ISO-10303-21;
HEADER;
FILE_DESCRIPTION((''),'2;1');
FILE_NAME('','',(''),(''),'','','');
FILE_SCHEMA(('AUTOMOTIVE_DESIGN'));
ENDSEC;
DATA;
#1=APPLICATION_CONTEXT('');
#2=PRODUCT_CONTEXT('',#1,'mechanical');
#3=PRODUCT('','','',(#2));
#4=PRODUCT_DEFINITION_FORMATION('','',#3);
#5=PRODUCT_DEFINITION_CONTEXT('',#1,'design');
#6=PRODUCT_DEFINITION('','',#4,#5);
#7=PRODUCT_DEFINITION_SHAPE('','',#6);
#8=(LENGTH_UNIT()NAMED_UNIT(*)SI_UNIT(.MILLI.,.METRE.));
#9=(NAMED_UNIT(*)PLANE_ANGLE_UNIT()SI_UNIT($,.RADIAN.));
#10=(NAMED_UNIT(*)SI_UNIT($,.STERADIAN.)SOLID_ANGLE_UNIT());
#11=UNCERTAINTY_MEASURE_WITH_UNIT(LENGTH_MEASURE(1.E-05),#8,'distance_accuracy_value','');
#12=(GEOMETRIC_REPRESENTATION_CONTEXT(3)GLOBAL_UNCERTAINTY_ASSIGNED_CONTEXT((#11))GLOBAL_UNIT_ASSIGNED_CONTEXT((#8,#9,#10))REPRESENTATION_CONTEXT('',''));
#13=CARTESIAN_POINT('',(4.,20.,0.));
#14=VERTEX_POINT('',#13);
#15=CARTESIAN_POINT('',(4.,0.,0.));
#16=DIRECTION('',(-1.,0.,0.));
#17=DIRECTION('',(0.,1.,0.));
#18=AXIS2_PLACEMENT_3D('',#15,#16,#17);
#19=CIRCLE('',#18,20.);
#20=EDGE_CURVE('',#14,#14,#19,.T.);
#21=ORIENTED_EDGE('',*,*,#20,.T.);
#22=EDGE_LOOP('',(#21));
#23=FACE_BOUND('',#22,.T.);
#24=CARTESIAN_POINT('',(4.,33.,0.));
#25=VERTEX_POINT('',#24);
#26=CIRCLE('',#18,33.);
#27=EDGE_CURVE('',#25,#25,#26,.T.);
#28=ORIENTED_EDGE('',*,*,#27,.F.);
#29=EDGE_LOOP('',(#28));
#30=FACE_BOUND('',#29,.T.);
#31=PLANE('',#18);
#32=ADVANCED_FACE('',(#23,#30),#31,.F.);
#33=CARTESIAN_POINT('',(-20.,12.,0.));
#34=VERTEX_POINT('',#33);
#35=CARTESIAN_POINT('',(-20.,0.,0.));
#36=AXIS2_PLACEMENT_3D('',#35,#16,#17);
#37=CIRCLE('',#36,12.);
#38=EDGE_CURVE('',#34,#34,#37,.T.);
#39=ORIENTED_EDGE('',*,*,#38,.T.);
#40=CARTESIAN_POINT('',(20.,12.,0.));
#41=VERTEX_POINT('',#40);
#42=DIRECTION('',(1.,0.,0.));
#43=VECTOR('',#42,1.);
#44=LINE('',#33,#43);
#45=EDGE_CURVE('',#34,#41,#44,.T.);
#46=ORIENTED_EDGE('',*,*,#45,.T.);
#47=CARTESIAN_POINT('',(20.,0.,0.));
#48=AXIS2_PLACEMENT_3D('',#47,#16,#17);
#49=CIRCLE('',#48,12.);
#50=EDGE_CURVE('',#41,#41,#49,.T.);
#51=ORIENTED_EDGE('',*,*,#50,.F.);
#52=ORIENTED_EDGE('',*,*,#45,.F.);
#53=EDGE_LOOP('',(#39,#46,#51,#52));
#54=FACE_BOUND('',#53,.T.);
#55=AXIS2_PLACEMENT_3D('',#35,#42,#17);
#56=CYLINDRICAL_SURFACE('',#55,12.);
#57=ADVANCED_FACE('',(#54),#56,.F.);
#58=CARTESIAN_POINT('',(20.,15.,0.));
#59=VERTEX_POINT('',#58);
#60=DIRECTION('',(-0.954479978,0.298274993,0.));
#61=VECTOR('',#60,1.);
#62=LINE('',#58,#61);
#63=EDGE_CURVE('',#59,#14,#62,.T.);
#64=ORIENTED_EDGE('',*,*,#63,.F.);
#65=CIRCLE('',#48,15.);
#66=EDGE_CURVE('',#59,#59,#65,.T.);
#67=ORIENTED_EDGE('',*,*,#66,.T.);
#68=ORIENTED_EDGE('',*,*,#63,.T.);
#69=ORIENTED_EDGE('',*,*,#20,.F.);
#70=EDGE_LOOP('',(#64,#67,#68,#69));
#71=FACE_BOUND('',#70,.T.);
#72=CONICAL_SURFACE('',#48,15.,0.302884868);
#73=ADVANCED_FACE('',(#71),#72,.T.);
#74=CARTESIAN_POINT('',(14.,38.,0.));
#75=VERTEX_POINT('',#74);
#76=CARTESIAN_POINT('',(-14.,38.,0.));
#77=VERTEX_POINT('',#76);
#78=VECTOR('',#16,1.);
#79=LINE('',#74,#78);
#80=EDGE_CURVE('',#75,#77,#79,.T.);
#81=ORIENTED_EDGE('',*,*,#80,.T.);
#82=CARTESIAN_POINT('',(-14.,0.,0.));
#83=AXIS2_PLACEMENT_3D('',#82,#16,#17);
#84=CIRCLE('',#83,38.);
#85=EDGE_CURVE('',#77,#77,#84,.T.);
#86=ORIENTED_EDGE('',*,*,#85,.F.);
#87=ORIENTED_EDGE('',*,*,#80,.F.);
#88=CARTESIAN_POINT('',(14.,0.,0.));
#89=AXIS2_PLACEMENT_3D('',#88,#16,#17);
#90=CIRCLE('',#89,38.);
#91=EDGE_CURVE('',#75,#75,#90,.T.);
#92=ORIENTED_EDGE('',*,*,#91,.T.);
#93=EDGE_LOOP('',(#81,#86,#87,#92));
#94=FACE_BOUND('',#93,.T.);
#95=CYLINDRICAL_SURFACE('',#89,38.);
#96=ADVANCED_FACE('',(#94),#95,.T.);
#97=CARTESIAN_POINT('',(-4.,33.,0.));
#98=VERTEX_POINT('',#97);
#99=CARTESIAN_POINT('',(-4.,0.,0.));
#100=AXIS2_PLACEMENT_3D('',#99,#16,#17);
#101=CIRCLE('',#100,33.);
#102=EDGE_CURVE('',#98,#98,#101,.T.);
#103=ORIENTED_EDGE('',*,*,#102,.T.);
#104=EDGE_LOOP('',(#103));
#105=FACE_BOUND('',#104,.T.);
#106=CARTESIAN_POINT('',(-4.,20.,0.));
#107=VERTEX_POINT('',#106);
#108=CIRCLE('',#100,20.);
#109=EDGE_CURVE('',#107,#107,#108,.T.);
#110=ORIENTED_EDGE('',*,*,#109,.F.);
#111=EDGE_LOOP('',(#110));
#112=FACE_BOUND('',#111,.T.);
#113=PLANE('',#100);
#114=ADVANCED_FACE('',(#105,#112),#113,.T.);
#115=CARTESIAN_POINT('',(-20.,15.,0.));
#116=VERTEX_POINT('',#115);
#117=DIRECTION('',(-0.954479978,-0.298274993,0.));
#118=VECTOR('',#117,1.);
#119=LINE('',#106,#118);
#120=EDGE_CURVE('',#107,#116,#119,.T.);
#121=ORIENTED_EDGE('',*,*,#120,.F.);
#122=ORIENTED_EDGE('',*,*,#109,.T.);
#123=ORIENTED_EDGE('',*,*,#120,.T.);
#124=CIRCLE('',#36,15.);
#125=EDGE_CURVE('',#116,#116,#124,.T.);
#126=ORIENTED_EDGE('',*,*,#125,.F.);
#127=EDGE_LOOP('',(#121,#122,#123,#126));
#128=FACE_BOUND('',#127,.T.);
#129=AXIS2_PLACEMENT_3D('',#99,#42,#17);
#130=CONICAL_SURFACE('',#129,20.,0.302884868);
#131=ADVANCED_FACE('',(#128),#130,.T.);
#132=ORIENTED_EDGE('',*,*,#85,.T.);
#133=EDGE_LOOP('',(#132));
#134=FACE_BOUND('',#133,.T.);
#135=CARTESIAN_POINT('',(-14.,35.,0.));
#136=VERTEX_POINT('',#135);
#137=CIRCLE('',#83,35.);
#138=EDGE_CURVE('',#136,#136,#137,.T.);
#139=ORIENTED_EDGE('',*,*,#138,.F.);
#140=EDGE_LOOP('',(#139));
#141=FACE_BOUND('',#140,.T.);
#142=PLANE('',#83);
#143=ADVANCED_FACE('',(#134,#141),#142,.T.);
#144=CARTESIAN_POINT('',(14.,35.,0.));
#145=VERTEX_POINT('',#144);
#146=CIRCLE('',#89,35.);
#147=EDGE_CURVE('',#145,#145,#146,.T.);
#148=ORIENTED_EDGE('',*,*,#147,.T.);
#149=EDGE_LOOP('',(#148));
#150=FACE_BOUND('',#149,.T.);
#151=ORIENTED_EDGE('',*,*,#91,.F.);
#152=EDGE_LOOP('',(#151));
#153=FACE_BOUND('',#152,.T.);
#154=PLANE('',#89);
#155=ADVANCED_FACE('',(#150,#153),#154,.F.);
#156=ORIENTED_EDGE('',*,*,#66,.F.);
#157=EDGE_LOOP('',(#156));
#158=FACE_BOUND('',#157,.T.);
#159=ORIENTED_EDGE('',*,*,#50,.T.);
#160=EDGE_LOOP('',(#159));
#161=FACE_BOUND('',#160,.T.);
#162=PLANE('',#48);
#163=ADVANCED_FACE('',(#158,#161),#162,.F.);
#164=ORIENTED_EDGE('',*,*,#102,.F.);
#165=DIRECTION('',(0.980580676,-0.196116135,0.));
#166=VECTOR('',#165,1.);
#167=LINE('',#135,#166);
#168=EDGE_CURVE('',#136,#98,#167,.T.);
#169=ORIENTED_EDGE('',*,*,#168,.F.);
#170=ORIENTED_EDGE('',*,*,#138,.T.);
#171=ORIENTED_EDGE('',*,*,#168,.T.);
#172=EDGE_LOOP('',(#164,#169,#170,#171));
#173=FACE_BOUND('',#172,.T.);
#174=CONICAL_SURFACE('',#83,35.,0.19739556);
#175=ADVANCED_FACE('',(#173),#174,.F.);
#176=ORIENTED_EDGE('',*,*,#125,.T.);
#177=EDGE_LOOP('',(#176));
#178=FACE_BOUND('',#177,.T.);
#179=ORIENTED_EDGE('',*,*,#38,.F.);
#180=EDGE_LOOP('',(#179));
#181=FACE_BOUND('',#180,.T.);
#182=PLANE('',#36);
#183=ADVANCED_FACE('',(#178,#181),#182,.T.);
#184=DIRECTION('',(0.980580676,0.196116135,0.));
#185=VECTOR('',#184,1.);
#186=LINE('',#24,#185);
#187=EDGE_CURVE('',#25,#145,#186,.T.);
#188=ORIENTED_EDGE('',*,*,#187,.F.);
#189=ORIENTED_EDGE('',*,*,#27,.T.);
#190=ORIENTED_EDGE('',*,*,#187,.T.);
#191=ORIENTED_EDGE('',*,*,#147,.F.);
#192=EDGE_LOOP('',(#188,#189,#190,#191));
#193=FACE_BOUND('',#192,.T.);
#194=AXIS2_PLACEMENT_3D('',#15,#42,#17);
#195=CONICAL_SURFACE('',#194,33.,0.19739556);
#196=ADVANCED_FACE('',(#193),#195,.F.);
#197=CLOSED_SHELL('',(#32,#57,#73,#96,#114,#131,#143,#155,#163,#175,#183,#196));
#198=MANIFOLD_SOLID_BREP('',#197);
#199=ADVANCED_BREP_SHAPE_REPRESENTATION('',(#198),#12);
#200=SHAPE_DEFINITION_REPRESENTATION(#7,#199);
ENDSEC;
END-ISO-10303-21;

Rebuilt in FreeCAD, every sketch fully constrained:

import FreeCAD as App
import Part
import Sketcher

V = App.Vector

doc = App.newDocument("Part")
body = doc.addObject("PartDesign::Body", "Body")

# Sketch on XY plane
sketch1 = body.newObject("Sketcher::SketchObject", "Sketch")
sketch1.AttachmentSupport = (doc.getObject("XY_Plane"), [""])
sketch1.MapMode = "FlatFace"
sketch1.addGeometry([
    Part.LineSegment(V(20, 12, 0), V(20, 15, 0)),  # 0
    Part.LineSegment(V(20, 15, 0), V(4, 20, 0)),  # 1
    Part.LineSegment(V(4, 20, 0), V(4, 33, 0)),  # 2
    Part.LineSegment(V(4, 33, 0), V(14, 35, 0)),  # 3
    Part.LineSegment(V(14, 35, 0), V(14, 38, 0)),  # 4
    Part.LineSegment(V(14, 38, 0), V(-14, 38, 0)),  # 5
    Part.LineSegment(V(-14, 38, 0), V(-14, 35, 0)),  # 6
    Part.LineSegment(V(-14, 35, 0), V(-4, 33, 0)),  # 7
    Part.LineSegment(V(-4, 33, 0), V(-4, 20, 0)),  # 8
    Part.LineSegment(V(-4, 20, 0), V(-20, 15, 0)),  # 9
    Part.LineSegment(V(-20, 15, 0), V(-20, 12, 0)),  # 10
    Part.LineSegment(V(-20, 12, 0), V(20, 12, 0)),  # 11
], False)
sketch1.addConstraint([
    Sketcher.Constraint("Coincident", 0, 2, 1, 1),
    Sketcher.Constraint("Coincident", 1, 2, 2, 1),
    Sketcher.Constraint("Coincident", 2, 2, 3, 1),
    Sketcher.Constraint("Coincident", 3, 2, 4, 1),
    Sketcher.Constraint("Coincident", 4, 2, 5, 1),
    Sketcher.Constraint("Coincident", 5, 2, 6, 1),
    Sketcher.Constraint("Coincident", 6, 2, 7, 1),
    Sketcher.Constraint("Coincident", 7, 2, 8, 1),
    Sketcher.Constraint("Coincident", 8, 2, 9, 1),
    Sketcher.Constraint("Coincident", 9, 2, 10, 1),
    Sketcher.Constraint("Coincident", 10, 2, 11, 1),
    Sketcher.Constraint("Coincident", 11, 2, 0, 1),
    Sketcher.Constraint("Vertical", 0),
    Sketcher.Constraint("Vertical", 2),
    Sketcher.Constraint("Vertical", 4),
    Sketcher.Constraint("Horizontal", 5),
    Sketcher.Constraint("Vertical", 6),
    Sketcher.Constraint("Vertical", 8),
    Sketcher.Constraint("Vertical", 10),
    Sketcher.Constraint("Horizontal", 11),
    Sketcher.Constraint("Symmetric", 3, 2, 6, 2, -2),
    Sketcher.Constraint("Symmetric", 2, 2, 7, 2, -2),
    Sketcher.Constraint("Symmetric", 0, 2, 9, 2, -2),
    Sketcher.Constraint("Horizontal", 1, 2, 8, 2),
    Sketcher.Constraint("Equal", 0, 4),
    Sketcher.Constraint("DistanceX", 5, 2, 5, 1, 28.0),
    Sketcher.Constraint("DistanceX", 11, 1, 11, 2, 40.0),
    Sketcher.Constraint("DistanceY", 0, 1, 0, 2, 3.0),
    Sketcher.Constraint("DistanceY", 2, 1, 2, 2, 13.0),
    Sketcher.Constraint("DistanceY", -1, 1, 0, 2, 15.0),
    Sketcher.Constraint("DistanceX", -1, 1, 1, 2, 4.0),
    Sketcher.Constraint("DistanceY", -1, 1, 1, 2, 20.0),
    Sketcher.Constraint("DistanceY", -1, 1, 3, 2, 35.0),
])
revolution = body.newObject("PartDesign::Revolution", "Revolution")
revolution.Profile = sketch1
revolution.ReferenceAxis = (sketch1, ["H_Axis"])
revolution.Angle = 360

doc.recompute()
